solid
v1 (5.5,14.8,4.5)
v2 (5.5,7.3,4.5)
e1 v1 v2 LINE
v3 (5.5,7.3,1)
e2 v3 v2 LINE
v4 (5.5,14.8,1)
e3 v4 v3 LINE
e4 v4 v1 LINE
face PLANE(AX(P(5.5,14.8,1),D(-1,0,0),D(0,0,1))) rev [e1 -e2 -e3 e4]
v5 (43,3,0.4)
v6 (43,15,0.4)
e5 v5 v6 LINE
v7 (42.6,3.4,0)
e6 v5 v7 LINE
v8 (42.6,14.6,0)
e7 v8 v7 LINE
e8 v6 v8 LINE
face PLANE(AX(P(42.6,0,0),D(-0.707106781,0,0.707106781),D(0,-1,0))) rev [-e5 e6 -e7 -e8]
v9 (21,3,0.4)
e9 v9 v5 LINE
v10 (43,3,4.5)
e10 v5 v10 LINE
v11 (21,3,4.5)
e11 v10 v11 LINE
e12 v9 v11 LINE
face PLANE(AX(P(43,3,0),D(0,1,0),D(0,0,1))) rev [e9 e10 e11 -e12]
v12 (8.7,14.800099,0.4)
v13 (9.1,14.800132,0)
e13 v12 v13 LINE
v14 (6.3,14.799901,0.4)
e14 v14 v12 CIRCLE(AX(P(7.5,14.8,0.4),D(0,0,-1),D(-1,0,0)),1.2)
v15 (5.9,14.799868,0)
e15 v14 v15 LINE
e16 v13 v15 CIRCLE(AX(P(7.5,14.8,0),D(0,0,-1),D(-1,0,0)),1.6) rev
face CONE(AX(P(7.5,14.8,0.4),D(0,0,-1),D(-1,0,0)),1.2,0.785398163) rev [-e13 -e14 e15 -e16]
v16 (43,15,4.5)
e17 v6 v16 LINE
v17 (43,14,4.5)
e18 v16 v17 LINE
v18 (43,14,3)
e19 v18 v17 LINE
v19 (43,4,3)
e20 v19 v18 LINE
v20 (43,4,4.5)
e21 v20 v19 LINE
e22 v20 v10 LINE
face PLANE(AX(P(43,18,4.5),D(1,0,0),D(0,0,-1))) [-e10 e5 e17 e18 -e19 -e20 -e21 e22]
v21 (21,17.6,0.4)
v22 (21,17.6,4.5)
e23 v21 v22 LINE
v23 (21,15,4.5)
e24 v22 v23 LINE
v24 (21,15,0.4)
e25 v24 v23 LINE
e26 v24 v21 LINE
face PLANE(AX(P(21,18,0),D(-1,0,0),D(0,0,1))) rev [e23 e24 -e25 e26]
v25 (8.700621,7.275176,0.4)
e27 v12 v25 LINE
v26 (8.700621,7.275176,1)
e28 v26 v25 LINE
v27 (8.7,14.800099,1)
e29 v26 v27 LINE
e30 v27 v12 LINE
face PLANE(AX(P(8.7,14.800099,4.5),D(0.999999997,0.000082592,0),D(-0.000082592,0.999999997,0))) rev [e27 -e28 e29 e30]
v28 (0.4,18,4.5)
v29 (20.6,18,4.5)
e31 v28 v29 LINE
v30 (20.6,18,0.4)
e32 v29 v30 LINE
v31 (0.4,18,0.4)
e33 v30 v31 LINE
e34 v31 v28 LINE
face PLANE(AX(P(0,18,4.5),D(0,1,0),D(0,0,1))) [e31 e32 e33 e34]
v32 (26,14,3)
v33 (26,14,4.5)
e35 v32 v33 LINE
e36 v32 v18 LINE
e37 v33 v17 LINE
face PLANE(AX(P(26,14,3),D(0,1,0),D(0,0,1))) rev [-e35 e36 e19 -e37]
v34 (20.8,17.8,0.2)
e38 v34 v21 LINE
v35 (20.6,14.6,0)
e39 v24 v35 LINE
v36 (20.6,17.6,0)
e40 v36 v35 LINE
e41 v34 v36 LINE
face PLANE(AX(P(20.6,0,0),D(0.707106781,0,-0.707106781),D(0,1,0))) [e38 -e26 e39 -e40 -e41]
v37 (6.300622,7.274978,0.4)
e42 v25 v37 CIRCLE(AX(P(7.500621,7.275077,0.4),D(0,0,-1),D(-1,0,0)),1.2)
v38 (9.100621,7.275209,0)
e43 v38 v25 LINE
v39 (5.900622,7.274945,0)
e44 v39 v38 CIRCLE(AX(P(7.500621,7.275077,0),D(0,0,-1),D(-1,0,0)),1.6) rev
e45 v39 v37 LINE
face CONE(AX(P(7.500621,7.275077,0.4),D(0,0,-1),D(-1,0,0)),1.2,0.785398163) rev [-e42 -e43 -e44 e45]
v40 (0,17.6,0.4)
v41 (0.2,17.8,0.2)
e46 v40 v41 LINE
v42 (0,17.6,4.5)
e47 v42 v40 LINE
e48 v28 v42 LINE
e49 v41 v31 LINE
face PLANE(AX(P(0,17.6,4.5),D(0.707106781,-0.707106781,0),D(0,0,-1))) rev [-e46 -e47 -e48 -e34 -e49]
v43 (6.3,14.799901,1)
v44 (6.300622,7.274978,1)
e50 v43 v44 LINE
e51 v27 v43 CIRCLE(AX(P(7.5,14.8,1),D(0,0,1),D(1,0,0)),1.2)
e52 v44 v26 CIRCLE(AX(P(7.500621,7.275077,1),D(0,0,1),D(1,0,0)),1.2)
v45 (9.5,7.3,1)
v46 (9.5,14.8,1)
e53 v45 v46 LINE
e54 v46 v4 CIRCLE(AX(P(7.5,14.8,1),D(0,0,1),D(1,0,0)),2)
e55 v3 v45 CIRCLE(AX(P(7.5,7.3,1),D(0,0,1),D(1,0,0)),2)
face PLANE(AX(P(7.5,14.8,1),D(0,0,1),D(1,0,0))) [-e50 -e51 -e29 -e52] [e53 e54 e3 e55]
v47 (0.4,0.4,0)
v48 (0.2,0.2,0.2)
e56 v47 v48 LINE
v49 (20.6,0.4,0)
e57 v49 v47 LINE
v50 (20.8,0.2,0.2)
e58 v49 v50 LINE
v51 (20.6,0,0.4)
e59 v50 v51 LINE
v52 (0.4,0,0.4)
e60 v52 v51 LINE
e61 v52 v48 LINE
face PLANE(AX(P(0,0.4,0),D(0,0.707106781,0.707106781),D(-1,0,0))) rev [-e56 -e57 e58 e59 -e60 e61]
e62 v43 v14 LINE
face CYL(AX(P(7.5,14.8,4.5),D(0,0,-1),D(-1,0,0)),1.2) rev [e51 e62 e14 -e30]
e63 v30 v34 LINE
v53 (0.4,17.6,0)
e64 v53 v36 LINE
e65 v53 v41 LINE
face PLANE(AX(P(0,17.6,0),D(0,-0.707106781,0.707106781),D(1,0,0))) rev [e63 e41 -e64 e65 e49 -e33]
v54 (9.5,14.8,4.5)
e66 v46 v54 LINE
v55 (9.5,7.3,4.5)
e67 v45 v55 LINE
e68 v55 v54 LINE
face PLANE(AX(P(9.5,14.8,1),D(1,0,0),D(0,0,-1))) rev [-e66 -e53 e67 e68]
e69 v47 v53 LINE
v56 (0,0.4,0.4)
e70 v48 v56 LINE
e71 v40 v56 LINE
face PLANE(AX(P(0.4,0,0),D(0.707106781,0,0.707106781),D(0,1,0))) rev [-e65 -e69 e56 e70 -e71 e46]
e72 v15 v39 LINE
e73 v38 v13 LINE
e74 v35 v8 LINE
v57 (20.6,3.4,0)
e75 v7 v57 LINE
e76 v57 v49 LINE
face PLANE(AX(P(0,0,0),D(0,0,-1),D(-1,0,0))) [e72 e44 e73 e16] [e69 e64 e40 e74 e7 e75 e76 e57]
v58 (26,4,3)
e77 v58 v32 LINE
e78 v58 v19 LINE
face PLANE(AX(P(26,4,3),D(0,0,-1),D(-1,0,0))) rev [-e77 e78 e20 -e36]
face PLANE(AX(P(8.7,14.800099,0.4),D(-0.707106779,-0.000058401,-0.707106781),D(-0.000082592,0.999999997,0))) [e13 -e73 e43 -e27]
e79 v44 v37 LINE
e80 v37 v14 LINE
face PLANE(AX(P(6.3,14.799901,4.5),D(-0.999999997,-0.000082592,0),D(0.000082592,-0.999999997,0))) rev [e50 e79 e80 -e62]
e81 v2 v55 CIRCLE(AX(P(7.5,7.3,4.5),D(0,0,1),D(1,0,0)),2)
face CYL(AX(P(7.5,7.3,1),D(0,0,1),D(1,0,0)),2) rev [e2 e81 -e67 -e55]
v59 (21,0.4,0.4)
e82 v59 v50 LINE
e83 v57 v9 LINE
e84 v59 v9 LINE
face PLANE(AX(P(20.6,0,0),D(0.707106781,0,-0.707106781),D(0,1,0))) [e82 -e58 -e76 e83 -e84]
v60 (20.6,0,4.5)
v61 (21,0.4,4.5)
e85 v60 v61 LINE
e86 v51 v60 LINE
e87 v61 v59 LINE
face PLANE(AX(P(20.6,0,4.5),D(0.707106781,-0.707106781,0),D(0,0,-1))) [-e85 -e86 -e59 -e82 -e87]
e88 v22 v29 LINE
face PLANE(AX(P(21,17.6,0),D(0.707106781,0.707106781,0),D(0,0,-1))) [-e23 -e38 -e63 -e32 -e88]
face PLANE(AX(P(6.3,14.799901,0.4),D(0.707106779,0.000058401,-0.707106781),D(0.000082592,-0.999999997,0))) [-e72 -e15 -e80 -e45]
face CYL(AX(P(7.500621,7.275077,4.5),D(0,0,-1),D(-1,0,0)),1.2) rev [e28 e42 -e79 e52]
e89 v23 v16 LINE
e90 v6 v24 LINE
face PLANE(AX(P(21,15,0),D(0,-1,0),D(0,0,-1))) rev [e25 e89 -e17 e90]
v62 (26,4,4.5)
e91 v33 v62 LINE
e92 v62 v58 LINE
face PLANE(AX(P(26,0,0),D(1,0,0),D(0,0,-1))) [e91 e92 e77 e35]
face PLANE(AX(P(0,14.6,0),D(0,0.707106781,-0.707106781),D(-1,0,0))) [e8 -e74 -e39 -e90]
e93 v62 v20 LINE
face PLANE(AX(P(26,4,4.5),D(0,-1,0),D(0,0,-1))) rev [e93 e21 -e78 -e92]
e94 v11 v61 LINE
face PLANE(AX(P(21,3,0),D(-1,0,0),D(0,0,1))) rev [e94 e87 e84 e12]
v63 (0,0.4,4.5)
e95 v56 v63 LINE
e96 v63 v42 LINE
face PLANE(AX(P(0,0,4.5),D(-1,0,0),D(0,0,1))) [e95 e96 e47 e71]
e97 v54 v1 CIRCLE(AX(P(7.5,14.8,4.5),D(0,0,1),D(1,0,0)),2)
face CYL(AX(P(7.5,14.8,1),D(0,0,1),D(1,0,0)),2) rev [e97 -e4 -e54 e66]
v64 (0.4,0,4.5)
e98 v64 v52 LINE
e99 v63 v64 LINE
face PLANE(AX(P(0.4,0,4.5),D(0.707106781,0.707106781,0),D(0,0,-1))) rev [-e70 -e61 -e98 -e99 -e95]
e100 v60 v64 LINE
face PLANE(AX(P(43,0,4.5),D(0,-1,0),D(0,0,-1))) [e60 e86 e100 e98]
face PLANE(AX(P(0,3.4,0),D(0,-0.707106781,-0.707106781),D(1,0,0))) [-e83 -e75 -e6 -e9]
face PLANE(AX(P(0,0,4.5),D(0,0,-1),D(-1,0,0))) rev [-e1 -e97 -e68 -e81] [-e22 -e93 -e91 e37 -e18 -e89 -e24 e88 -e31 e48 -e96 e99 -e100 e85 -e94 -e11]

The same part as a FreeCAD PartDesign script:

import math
import FreeCAD as App
import Part
import Sketcher
Q = App.Units.Quantity


def edges_at(feature, points):
    """Names of the edges that pass closest to the given points."""
    edges = feature.Shape.Edges
    near = lambda p: min(range(len(edges)), key=lambda i: edges[i].distToShape(Part.Vertex(*p))[0])
    return sorted({f"Edge{near(p) + 1}" for p in points})


def add_polygon(sketch, points):
    """Adds a closed chain of lines whose ends are joined by coincident constraints."""
    first, n = sketch.GeometryCount, len(points)
    for a, b in zip(points, points[1:] + points[:1]):
        sketch.addGeometry(Part.LineSegment(App.Vector(*a, 0), App.Vector(*b, 0)), False)
    for i in range(n):
        sketch.addConstraint(Sketcher.Constraint("Coincident", first + i, 2, first + (i + 1) % n, 1))

doc = App.newDocument("Part")
body = doc.addObject("PartDesign::Body", "Body")

# Sketch on XY plane
sketch1 = body.newObject("Sketcher::SketchObject", "Sketch")
sketch1.AttachmentSupport = (doc.getObject("XY_Plane"), [""])
sketch1.MapMode = "FlatFace"
add_polygon(sketch1, [(43, 18), (43, 0), (0, 0), (0, 18)])  # lines 0-3
sketch1.addConstraint([
    Sketcher.Constraint("Vertical", 0),
    Sketcher.Constraint("Horizontal", 1),
    Sketcher.Constraint("Vertical", 2),
    Sketcher.Constraint("Horizontal", 3),
    Sketcher.Constraint("Coincident", 1, 2, -1, 1),
    Sketcher.Constraint("DistanceX", 1, 2, 1, 1, Q("43 mm")),
    Sketcher.Constraint("DistanceY", 0, 2, 0, 1, Q("18 mm")),
])
pad1 = body.newObject("PartDesign::Pad", "Pad")
pad1.Profile = sketch1
pad1.Length = 4.5

# Sketch on XY plane
sketch2 = body.newObject("Sketcher::SketchObject", "Sketch001")
sketch2.AttachmentSupport = (doc.getObject("XY_Plane"), [""])
sketch2.MapMode = "FlatFace"
sketch2.AttachmentOffset = App.Placement(App.Vector(0, 0, 4.5), App.Rotation())
add_polygon(sketch2, [(21, 3), (21, 0), (43, 0), (43, 3)])  # lines 0-3
sketch2.addConstraint([
    Sketcher.Constraint("Vertical", 0),
    Sketcher.Constraint("Horizontal", 1),
    Sketcher.Constraint("Vertical", 2),
    Sketcher.Constraint("Horizontal", 3),
    Sketcher.Constraint("PointOnObject", 0, 2, -1),
    Sketcher.Constraint("DistanceX", 1, 1, 1, 2, Q("22 mm")),
    Sketcher.Constraint("DistanceY", 0, 2, 0, 1, Q("3 mm")),
    Sketcher.Constraint("DistanceX", -1, 1, 0, 2, Q("21 mm")),
])
pocket1 = body.newObject("PartDesign::Pocket", "Pocket")
pocket1.Profile = sketch2
pocket1.Type = "ThroughAll"

# Sketch on XY plane
sketch3 = body.newObject("Sketcher::SketchObject", "Sketch002")
sketch3.AttachmentSupport = (doc.getObject("XY_Plane"), [""])
sketch3.MapMode = "FlatFace"
sketch3.AttachmentOffset = App.Placement(App.Vector(0, 0, 4.5), App.Rotation())
add_polygon(sketch3, [(21, 18), (21, 15), (43, 15), (43, 18)])  # lines 0-3
sketch3.addConstraint([
    Sketcher.Constraint("Vertical", 0),
    Sketcher.Constraint("Horizontal", 1),
    Sketcher.Constraint("Vertical", 2),
    Sketcher.Constraint("Horizontal", 3),
    Sketcher.Constraint("DistanceX", 1, 1, 1, 2, Q("22 mm")),
    Sketcher.Constraint("DistanceY", 0, 2, 0, 1, Q("3 mm")),
    Sketcher.Constraint("DistanceX", -1, 1, 0, 2, Q("21 mm")),
    Sketcher.Constraint("DistanceY", -1, 1, 0, 2, Q("15 mm")),
])
pocket2 = body.newObject("PartDesign::Pocket", "Pocket001")
pocket2.Profile = sketch3
pocket2.Type = "ThroughAll"

# Sketch on XY plane
sketch4 = body.newObject("Sketcher::SketchObject", "Sketch003")
sketch4.AttachmentSupport = (doc.getObject("XY_Plane"), [""])
sketch4.MapMode = "FlatFace"
sketch4.AttachmentOffset = App.Placement(App.Vector(0, 0, 4.5), App.Rotation())
sketch4.addGeometry([
    Part.LineSegment(App.Vector(9.5, 7.3, 0), App.Vector(9.5, 14.8, 0)),
    Part.ArcOfCircle(Part.Circle(App.Vector(7.5, 14.8, 0), App.Vector(0, 0, 1), 2), math.radians(0), math.radians(180)),
    Part.LineSegment(App.Vector(5.5, 14.8, 0), App.Vector(5.5, 7.3, 0)),
    Part.ArcOfCircle(Part.Circle(App.Vector(7.5, 7.3, 0), App.Vector(0, 0, 1), 2), math.radians(180), math.radians(360)),
], False)
sketch4.addConstraint([
    Sketcher.Constraint("Tangent", 0, 2, 1, 1),
    Sketcher.Constraint("Tangent", 1, 2, 2, 1),
    Sketcher.Constraint("Tangent", 2, 2, 3, 1),
    Sketcher.Constraint("Tangent", 3, 2, 0, 1),
    Sketcher.Constraint("Vertical", 0),
    Sketcher.Constraint("Vertical", 2),
    Sketcher.Constraint("Radius", 1, Q("2 mm")),
    Sketcher.Constraint("DistanceY", 0, 1, 0, 2, Q("7.5 mm")),
    Sketcher.Constraint("DistanceX", -1, 1, 1, 3, Q("7.5 mm")),
    Sketcher.Constraint("DistanceY", -1, 1, 1, 3, Q("14.8 mm")),
])
pocket3 = body.newObject("PartDesign::Pocket", "Pocket002")
pocket3.Profile = sketch4
pocket3.Length = 3.5

# Sketch on XY plane
sketch5 = body.newObject("Sketcher::SketchObject", "Sketch004")
sketch5.AttachmentSupport = (doc.getObject("XY_Plane"), [""])
sketch5.MapMode = "FlatFace"
sketch5.addGeometry([
    Part.LineSegment(App.Vector(6.3, 7.3, 0), App.Vector(6.3, 14.8, 0)),
    Part.ArcOfCircle(Part.Circle(App.Vector(7.5, 14.8, 0), App.Vector(0, 0, 1), 1.2), math.radians(0), math.radians(180)),
    Part.LineSegment(App.Vector(8.7, 14.8, 0), App.Vector(8.7, 7.3, 0)),
    Part.ArcOfCircle(Part.Circle(App.Vector(7.5, 7.3, 0), App.Vector(0, 0, 1), 1.2), math.radians(-180), math.radians(0)),
], False)
sketch5.addConstraint([
    Sketcher.Constraint("Tangent", 0, 2, 1, 2),
    Sketcher.Constraint("Tangent", 1, 1, 2, 1),
    Sketcher.Constraint("Tangent", 2, 2, 3, 2),
    Sketcher.Constraint("Tangent", 3, 1, 0, 1),
    Sketcher.Constraint("Equal", 1, 3),
    Sketcher.Constraint("Radius", 1, Q("1.2 mm")),
    Sketcher.Constraint("DistanceX", -1, 1, 1, 3, Q("7.5 mm")),
    Sketcher.Constraint("DistanceY", -1, 1, 1, 3, Q("14.8 mm")),
    Sketcher.Constraint("DistanceY", -1, 1, 0, 2, Q("14.799901 mm")),
    Sketcher.Constraint("DistanceY", 3, 1, 1, 1, Q("7.525121 mm")),
])
pocket4 = body.newObject("PartDesign::Pocket", "Pocket003")
pocket4.Profile = sketch5
pocket4.Type = "ThroughAll"
pocket4.Reversed = True

# Sketch on YZ plane
sketch6 = body.newObject("Sketcher::SketchObject", "Sketch005")
sketch6.AttachmentSupport = (doc.getObject("YZ_Plane"), [""])
sketch6.MapMode = "FlatFace"
sketch6.AttachmentOffset = App.Placement(App.Vector(0, 0, 43), App.Rotation())
add_polygon(sketch6, [(14, 4.5), (4, 4.5), (4, 3), (14, 3)])  # lines 0-3
sketch6.addConstraint([
    Sketcher.Constraint("Horizontal", 0),
    Sketcher.Constraint("Vertical", 1),
    Sketcher.Constraint("Horizontal", 2),
    Sketcher.Constraint("Vertical", 3),
    Sketcher.Constraint("DistanceX", 0, 2, 0, 1, Q("10 mm")),
    Sketcher.Constraint("DistanceY", 1, 2, 1, 1, Q("1.5 mm")),
    Sketcher.Constraint("DistanceX", -1, 1, 0, 2, Q("4 mm")),
    Sketcher.Constraint("DistanceY", -1, 1, 1, 2, Q("3 mm")),
])
pocket5 = body.newObject("PartDesign::Pocket", "Pocket004")
pocket5.Profile = sketch6
pocket5.Length = 17
doc.recompute()

chamfer = body.newObject("PartDesign::Chamfer", "Chamfer")
chamfer.Base = (pocket5, edges_at(pocket5, [
    (10.5, 0, 0),
    (21, 1.5, 0),
    (32, 3, 0),
    (43, 9, 0),
    (21, 16.5, 0),
    (32, 15, 0),
    (0, 9, 0),
    (10.5, 18, 0),
    (7.5, 16, 0),
    (8.7, 11.038, 0),
    (7.501, 6.075, 0),
    (6.3, 11.037, 0),
]))
chamfer.Size = 0.4
doc.recompute()

chamfer2 = body.newObject("PartDesign::Chamfer", "Chamfer001")
chamfer2.Base = (chamfer, edges_at(chamfer, [
    (21, 18, 2.45),
    (21, 0, 2.45),
    (0, 18, 2.45),
    (0, 0, 2.45),
]))
chamfer2.Size = 0.4

doc.recompute()
